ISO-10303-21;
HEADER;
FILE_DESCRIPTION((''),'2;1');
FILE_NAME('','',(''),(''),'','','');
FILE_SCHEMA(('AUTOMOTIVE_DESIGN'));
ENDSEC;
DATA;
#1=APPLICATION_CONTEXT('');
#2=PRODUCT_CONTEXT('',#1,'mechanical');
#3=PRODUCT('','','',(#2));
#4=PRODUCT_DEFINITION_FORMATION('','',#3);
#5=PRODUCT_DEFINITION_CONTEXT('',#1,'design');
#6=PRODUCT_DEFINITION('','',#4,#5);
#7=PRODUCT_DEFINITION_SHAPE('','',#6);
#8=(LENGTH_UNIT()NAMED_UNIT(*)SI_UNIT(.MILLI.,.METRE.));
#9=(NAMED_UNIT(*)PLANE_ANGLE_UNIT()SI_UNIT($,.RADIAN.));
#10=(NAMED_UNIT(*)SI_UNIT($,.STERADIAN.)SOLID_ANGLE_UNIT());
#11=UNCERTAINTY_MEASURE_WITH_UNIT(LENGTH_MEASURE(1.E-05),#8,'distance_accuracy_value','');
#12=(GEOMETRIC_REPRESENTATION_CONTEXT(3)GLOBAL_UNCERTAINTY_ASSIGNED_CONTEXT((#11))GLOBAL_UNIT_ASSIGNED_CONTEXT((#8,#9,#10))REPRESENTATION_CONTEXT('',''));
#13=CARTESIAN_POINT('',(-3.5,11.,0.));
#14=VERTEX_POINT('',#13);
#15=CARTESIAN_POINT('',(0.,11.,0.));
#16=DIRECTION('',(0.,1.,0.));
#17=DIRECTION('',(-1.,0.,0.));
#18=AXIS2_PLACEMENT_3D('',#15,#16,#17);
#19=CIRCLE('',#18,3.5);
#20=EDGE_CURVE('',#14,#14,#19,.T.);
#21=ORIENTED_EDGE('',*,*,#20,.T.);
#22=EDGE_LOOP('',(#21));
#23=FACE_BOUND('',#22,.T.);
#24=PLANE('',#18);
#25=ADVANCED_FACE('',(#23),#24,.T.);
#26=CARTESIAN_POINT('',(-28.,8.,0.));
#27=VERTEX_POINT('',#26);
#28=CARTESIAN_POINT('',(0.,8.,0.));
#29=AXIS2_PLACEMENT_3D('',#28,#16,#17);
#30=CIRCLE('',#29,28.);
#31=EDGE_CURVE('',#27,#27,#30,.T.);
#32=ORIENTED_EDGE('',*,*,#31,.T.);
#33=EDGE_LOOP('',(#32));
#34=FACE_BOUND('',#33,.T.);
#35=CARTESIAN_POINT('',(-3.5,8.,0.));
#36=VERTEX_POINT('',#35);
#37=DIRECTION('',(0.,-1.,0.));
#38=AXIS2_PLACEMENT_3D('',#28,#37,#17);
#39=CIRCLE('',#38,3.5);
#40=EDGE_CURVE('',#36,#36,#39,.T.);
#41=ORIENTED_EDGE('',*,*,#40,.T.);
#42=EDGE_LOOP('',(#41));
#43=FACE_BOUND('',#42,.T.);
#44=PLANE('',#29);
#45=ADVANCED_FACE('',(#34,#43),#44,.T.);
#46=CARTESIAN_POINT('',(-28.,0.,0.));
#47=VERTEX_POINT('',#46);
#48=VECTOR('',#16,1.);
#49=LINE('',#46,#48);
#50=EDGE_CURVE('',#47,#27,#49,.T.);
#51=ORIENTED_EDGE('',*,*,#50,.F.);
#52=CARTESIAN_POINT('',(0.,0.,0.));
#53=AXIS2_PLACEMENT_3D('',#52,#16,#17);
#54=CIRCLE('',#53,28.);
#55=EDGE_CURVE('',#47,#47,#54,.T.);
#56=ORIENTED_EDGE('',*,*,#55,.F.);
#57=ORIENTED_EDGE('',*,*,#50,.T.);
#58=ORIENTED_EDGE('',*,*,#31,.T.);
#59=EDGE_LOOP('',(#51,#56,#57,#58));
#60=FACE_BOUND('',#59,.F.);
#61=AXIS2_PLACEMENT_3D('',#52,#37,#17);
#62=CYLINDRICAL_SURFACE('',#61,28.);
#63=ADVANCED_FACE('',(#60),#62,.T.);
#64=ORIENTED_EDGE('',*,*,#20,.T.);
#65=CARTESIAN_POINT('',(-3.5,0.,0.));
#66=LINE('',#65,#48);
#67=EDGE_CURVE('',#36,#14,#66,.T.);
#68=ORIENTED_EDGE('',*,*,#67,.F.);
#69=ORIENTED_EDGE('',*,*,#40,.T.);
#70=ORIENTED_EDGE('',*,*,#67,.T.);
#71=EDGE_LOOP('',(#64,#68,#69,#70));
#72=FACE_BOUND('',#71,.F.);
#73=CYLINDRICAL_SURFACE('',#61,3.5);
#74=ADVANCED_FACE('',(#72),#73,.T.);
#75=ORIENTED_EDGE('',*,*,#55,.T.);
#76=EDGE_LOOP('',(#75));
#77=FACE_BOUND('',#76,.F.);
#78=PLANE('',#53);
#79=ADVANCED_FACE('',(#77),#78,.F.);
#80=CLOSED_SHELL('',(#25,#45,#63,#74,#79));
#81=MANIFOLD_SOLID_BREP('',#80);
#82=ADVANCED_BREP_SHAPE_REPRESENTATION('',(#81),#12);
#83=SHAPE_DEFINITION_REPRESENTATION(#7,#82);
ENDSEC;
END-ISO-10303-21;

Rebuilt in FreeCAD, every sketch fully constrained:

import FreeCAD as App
import Part
import Sketcher

V = App.Vector
Q = App.Units.Quantity

doc = App.newDocument("Part")
params = doc.addObject("Spreadsheet::Sheet", "Params")
for row, (alias, value) in enumerate([
    ("sketch1_diameter", "56 mm"),
    ("pad1_length", "8 mm"),
    ("sketch2_diameter", "7 mm"),
    ("pad2_length", "11 mm"),
], start=1):
    params.set(f"A{row}", alias)
    params.set(f"B{row}", "=" + value)
    params.setAlias(f"B{row}", alias)

body = doc.addObject("PartDesign::Body", "Body")

# Sketch on XZ plane
sketch1 = body.newObject("Sketcher::SketchObject", "Sketch")
sketch1.AttachmentSupport = (doc.getObject("XZ_Plane"), [""])
sketch1.MapMode = "FlatFace"
sketch1.addGeometry(Part.Circle(V(0, 0, 0), V(0, 0, 1), 28), False)
sketch1.addConstraint(Sketcher.Constraint("Coincident", 0, 3, -1, 1))
sketch1.addConstraint(Sketcher.Constraint("Diameter", 0, Q("56 mm")))
sketch1.setExpression("Constraints[1]", "Params.sketch1_diameter")
pad1 = body.newObject("PartDesign::Pad", "Pad")
pad1.Profile = sketch1
pad1.setExpression("Length", "Params.pad1_length")
pad1.Reversed = True

# Sketch on XZ plane
sketch2 = body.newObject("Sketcher::SketchObject", "Sketch001")
sketch2.AttachmentSupport = (doc.getObject("XZ_Plane"), [""])
sketch2.MapMode = "FlatFace"
sketch2.addGeometry(Part.Circle(V(0, 0, 0), V(0, 0, 1), 3.5), False)
sketch2.addConstraint(Sketcher.Constraint("Coincident", 0, 3, -1, 1))
sketch2.addConstraint(Sketcher.Constraint("Diameter", 0, Q("7 mm")))
sketch2.setExpression("Constraints[1]", "Params.sketch2_diameter")
pad2 = body.newObject("PartDesign::Pad", "Pad001")
pad2.Profile = sketch2
pad2.setExpression("Length", "Params.pad2_length")
pad2.Reversed = True

doc.recompute()
